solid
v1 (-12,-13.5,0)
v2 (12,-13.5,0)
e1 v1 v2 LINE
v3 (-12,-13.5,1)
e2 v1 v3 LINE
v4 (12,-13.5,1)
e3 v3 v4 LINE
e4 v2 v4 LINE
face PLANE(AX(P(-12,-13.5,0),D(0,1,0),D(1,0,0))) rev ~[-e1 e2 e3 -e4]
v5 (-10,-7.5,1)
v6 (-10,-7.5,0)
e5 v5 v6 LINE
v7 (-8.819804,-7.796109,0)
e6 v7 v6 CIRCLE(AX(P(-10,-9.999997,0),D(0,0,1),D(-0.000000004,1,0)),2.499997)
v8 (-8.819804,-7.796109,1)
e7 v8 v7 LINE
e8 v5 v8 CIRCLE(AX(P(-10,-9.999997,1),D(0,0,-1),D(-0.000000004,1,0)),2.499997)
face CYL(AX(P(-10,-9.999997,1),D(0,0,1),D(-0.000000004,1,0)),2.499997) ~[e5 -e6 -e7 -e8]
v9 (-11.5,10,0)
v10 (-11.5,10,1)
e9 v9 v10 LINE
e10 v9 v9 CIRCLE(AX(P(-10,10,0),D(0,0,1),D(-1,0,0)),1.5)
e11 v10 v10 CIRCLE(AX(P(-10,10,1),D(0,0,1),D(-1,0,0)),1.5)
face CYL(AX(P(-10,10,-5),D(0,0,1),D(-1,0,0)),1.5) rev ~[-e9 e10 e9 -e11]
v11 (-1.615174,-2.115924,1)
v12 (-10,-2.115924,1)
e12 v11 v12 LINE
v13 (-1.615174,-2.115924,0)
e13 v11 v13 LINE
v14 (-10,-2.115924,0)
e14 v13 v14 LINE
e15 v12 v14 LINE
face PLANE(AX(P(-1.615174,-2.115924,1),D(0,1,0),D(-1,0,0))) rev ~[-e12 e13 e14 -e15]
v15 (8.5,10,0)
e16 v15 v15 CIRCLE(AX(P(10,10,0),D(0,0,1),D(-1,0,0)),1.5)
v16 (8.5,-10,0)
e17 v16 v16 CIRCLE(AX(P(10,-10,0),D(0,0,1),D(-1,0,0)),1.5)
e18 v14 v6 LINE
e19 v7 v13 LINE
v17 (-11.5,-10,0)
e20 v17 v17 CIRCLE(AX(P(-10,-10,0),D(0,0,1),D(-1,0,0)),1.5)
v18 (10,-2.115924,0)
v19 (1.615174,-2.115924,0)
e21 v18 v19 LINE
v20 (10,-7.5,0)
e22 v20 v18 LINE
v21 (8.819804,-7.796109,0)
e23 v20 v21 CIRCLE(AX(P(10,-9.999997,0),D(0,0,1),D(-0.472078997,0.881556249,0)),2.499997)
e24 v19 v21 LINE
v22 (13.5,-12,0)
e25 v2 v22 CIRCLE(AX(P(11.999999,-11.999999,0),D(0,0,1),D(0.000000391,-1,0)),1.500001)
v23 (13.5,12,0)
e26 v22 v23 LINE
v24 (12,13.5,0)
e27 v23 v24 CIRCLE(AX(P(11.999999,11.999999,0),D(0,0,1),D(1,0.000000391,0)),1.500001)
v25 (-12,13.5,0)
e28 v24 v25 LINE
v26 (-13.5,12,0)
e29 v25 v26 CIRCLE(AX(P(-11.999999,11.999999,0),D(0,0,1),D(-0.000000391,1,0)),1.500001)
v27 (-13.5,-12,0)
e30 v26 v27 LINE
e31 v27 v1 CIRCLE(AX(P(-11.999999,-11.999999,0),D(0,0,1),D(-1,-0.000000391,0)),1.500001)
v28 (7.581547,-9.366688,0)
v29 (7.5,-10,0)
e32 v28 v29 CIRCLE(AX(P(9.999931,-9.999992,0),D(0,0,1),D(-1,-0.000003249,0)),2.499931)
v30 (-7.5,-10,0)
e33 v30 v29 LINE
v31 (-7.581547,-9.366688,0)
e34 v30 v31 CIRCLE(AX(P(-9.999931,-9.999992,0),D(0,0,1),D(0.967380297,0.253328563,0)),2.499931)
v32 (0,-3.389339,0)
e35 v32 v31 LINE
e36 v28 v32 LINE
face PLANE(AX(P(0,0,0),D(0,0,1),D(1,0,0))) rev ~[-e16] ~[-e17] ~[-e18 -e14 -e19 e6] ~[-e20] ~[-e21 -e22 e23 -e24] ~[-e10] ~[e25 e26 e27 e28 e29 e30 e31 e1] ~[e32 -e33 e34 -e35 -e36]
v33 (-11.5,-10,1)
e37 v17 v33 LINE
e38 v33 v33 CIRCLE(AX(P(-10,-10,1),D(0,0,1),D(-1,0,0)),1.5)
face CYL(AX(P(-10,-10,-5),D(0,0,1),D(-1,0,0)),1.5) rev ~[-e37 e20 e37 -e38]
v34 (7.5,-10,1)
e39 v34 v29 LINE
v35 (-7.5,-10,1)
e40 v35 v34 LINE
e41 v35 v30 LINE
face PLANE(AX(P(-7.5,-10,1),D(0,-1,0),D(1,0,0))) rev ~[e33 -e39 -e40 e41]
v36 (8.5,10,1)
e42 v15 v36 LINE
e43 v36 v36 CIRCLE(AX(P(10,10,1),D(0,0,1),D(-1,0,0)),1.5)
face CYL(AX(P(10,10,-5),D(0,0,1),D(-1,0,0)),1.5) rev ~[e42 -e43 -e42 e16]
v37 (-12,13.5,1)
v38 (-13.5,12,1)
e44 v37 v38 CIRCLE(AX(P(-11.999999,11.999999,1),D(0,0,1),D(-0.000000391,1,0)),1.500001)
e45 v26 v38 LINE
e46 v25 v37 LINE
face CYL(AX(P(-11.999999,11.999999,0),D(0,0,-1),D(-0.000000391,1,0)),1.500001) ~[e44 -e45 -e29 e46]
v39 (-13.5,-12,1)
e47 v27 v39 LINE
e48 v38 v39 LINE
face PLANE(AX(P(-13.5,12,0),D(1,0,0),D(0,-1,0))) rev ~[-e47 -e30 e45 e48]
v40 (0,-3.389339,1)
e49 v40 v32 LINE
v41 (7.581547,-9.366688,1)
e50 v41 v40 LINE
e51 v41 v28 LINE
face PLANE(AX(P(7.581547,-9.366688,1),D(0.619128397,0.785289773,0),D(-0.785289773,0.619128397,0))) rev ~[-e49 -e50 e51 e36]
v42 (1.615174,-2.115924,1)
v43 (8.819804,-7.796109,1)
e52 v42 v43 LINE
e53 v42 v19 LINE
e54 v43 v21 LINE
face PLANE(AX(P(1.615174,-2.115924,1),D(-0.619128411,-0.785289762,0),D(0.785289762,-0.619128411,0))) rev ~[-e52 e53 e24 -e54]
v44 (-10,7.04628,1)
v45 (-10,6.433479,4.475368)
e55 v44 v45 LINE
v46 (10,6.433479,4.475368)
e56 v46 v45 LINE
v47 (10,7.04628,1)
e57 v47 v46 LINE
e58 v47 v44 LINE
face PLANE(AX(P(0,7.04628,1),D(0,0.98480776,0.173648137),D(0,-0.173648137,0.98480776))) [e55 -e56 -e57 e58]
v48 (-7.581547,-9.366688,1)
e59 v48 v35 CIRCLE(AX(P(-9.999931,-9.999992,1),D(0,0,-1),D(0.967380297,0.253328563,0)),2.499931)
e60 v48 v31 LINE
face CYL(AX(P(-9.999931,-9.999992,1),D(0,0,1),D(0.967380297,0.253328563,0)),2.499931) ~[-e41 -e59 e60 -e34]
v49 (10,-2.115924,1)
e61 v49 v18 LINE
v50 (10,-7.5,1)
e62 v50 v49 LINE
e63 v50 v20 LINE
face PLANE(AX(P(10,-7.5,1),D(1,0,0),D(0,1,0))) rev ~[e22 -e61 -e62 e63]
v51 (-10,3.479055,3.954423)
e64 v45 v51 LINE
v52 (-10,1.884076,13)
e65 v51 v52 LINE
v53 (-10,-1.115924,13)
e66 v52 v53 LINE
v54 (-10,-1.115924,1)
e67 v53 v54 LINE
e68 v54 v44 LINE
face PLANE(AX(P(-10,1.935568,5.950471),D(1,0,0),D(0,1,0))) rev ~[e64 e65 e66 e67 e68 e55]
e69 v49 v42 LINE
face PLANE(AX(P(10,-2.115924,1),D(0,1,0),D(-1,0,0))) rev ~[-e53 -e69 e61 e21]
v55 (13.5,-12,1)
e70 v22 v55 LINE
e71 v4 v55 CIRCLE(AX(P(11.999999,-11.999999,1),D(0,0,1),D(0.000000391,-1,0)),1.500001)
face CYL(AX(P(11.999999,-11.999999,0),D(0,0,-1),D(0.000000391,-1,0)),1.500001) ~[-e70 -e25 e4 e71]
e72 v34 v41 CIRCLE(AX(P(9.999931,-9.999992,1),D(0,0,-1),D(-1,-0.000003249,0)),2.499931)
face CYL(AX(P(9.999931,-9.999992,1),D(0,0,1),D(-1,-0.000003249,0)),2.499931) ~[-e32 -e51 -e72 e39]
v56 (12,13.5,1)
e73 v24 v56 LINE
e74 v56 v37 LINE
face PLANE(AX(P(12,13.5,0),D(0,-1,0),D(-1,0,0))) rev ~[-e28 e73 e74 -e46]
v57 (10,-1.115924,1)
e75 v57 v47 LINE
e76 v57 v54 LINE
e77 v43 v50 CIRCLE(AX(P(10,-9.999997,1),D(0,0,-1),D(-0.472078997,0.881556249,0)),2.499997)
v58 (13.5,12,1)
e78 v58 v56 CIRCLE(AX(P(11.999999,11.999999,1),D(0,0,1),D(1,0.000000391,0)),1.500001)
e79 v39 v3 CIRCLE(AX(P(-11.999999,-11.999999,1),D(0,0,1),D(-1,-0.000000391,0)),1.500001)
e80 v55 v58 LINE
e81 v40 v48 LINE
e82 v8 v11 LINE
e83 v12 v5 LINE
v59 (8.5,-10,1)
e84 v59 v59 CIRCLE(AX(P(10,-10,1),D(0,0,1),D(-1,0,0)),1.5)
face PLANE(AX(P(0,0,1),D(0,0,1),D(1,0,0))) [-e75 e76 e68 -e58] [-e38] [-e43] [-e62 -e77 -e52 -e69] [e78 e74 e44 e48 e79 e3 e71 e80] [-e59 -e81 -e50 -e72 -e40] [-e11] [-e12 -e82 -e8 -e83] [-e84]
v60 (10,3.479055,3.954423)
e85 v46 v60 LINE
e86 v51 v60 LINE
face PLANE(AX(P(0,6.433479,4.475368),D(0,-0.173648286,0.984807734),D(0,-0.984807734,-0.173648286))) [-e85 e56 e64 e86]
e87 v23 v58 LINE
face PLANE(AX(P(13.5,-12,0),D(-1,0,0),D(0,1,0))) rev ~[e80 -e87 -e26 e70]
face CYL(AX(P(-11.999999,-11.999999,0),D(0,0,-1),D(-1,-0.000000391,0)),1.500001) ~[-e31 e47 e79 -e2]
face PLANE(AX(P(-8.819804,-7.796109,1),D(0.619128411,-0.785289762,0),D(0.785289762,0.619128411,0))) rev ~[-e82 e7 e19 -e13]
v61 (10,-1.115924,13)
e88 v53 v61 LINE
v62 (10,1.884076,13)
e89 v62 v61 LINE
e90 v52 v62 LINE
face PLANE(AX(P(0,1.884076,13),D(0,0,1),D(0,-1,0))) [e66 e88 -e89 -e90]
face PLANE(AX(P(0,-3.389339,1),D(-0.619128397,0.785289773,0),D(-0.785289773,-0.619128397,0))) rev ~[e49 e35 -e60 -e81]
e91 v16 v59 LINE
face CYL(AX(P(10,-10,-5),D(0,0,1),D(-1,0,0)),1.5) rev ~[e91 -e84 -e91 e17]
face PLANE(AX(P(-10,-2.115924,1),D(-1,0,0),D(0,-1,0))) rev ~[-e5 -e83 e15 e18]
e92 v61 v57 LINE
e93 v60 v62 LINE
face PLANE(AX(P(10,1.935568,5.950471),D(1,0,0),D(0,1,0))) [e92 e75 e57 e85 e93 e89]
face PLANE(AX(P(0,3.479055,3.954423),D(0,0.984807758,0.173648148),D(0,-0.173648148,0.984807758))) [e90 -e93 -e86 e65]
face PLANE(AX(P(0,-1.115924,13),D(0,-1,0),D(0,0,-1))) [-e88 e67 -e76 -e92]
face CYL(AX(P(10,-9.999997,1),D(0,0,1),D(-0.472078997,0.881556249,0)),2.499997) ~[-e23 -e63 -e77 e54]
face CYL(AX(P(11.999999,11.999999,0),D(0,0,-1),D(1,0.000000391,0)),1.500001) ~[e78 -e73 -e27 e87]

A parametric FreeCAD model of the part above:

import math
import FreeCAD as App
import Part
import Sketcher
from FreeCAD import Vector
Q = App.Units.Quantity


def add_polygon(sketch, points):
    """Adds a closed chain of lines whose ends are joined by coincident constraints."""
    first, n = sketch.GeometryCount, len(points)
    for a, b in zip(points, points[1:] + points[:1]):
        sketch.addGeometry(Part.LineSegment(App.Vector(*a, 0), App.Vector(*b, 0)), False)
    for i in range(n):
        sketch.addConstraint(Sketcher.Constraint("Coincident", first + i, 2, first + (i + 1) % n, 1))

doc = App.newDocument("Part")
body = doc.addObject("PartDesign::Body", "Body")

sketch1 = body.newObject("Sketcher::SketchObject", "Sketch")
sketch1.AttachmentSupport = (doc.getObject("XY_Plane"), [""])
sketch1.MapMode = "FlatFace"
sketch1.addGeometry(Part.LineSegment(Vector(12, 13.5, 0), Vector(-12, 13.5, 0)), False)
sketch1.addGeometry(Part.ArcOfCircle(Part.Circle(Vector(-12, 12, 0), Vector(0, 0, 1), 1.5), math.radians(90), math.radians(180)), False)
sketch1.addGeometry(Part.LineSegment(Vector(-13.5, 12, 0), Vector(-13.5, -12, 0)), False)
sketch1.addGeometry(Part.ArcOfCircle(Part.Circle(Vector(-12, -12, 0), Vector(0, 0, 1), 1.5), math.radians(-180), math.radians(-90)), False)
sketch1.addGeometry(Part.LineSegment(Vector(-12, -13.5, 0), Vector(12, -13.5, 0)), False)
sketch1.addGeometry(Part.ArcOfCircle(Part.Circle(Vector(12, -12, 0), Vector(0, 0, 1), 1.5), math.radians(-90), math.radians(0)), False)
sketch1.addGeometry(Part.LineSegment(Vector(13.5, -12, 0), Vector(13.5, 12, 0)), False)
sketch1.addGeometry(Part.ArcOfCircle(Part.Circle(Vector(12, 12, 0), Vector(0, 0, 1), 1.5), math.radians(0), math.radians(90)), False)
sketch1.addConstraint(Sketcher.Constraint("Tangent", 0, 2, 1, 1))
sketch1.addConstraint(Sketcher.Constraint("Tangent", 1, 2, 2, 1))
sketch1.addConstraint(Sketcher.Constraint("Tangent", 2, 2, 3, 1))
sketch1.addConstraint(Sketcher.Constraint("Tangent", 3, 2, 4, 1))
sketch1.addConstraint(Sketcher.Constraint("Tangent", 4, 2, 5, 1))
sketch1.addConstraint(Sketcher.Constraint("Tangent", 5, 2, 6, 1))
sketch1.addConstraint(Sketcher.Constraint("Tangent", 6, 2, 7, 1))
sketch1.addConstraint(Sketcher.Constraint("Tangent", 7, 2, 0, 1))
sketch1.addConstraint(Sketcher.Constraint("Horizontal", 0))
sketch1.addConstraint(Sketcher.Constraint("Vertical", 2))
sketch1.addConstraint(Sketcher.Constraint("Horizontal", 4))
sketch1.addConstraint(Sketcher.Constraint("Vertical", 6))
sketch1.addConstraint(Sketcher.Constraint("Equal", 1, 3))
sketch1.addConstraint(Sketcher.Constraint("Equal", 3, 5))
sketch1.addConstraint(Sketcher.Constraint("Equal", 5, 7))
sketch1.addConstraint(Sketcher.Constraint("Symmetric", 1, 3, 5, 3, -1, 1))
sketch1.addConstraint(Sketcher.Constraint("Equal", 4, 2))
sketch1.addConstraint(Sketcher.Constraint("Radius", 1, 1.500001))
sketch1.addConstraint(Sketcher.Constraint("DistanceX", 0, 2, 0, 1, 24.0))
pad1 = body.newObject("PartDesign::Pad", "Pad")
pad1.Profile = sketch1
pad1.Length = 1

sketch2 = body.newObject("Sketcher::SketchObject", "Sketch001")
sketch2.AttachmentSupport = (doc.getObject("YZ_Plane"), [""])
sketch2.MapMode = "FlatFace"
add_polygon(sketch2, [(6.4, 4.5), (3.5, 4), (1.9, 13), (-1.1, 13), (-1.1, 1), (7, 1)])
sketch2.addConstraint(Sketcher.Constraint("Horizontal", 2))
sketch2.addConstraint(Sketcher.Constraint("Vertical", 3))
sketch2.addConstraint(Sketcher.Constraint("Horizontal", 4))
sketch2.addConstraint(Sketcher.Constraint("Perpendicular", 0, 1))
sketch2.addConstraint(Sketcher.Constraint("Parallel", 1, 5))
sketch2.addConstraint(Sketcher.Constraint("DistanceX", 2, 2, 2, 1, 3.0))
sketch2.addConstraint(Sketcher.Constraint("DistanceY", 3, 2, 3, 1, 12.0))
sketch2.addConstraint(Sketcher.Constraint("Angle", 0, Q("-169.999994 deg")))
sketch2.addConstraint(Sketcher.Constraint("Distance", 0, 3.000001))
sketch2.addConstraint(Sketcher.Constraint("DistanceY", -1, 1, 1, 2, 13.0))
sketch2.addConstraint(Sketcher.Constraint("DistanceX", 5, 2, 4, 2, 0.612801))
sketch2.addConstraint(Sketcher.Constraint("DistanceX", -1, 1, 4, 2, 7.04628))
pad2 = body.newObject("PartDesign::Pad", "Pad001")
pad2.Profile = sketch2
pad2.Length = 20
pad2.Midplane = True

sketch3 = body.newObject("Sketcher::SketchObject", "Sketch002")
sketch3.AttachmentSupport = (doc.getObject("XY_Plane"), [""])
sketch3.MapMode = "FlatFace"
sketch3.addGeometry(Part.Circle(Vector(10, 10, 0), Vector(0, 0, 1), 1.5), False)
sketch3.addGeometry(Part.Circle(Vector(-10, 10, 0), Vector(0, 0, 1), 1.5), False)
sketch3.addGeometry(Part.Circle(Vector(-10, -10, 0), Vector(0, 0, 1), 1.5), False)
sketch3.addGeometry(Part.Circle(Vector(10, -10, 0), Vector(0, 0, 1), 1.5), False)
sketch3.addConstraint(Sketcher.Constraint("Equal", 0, 1))
sketch3.addConstraint(Sketcher.Constraint("Equal", 1, 2))
sketch3.addConstraint(Sketcher.Constraint("Equal", 2, 3))
sketch3.addConstraint(Sketcher.Constraint("Symmetric", 0, 3, 2, 3, -1, 1))
sketch3.addConstraint(Sketcher.Constraint("Symmetric", 1, 3, 3, 3, -1, 1))
sketch3.addConstraint(Sketcher.Constraint("Symmetric", 0, 3, 1, 3, -2))
sketch3.addConstraint(Sketcher.Constraint("Diameter", 0, 3.0))
sketch3.addConstraint(Sketcher.Constraint("DistanceX", -1, 1, 0, 3, 10.0))
sketch3.addConstraint(Sketcher.Constraint("DistanceY", -1, 1, 0, 3, 10.0))
doc.recompute()
hole = body.newObject("PartDesign::Hole", "Hole")
hole.Profile = sketch3
hole.ThreadType = "None"
hole.Diameter = 3
hole.DepthType = "Dimension"
hole.Depth = 5
hole.DrillPoint = "Flat"
hole.Reversed = True

sketch4 = body.newObject("Sketcher::SketchObject", "Sketch003")
sketch4.AttachmentSupport = (doc.getObject("XY_Plane"), [""])
sketch4.MapMode = "FlatFace"
sketch4.AttachmentOffset = App.Placement(Vector(0, 0, 1), App.Rotation())
sketch4.addGeometry(Part.LineSegment(Vector(-1.6, -2.1, 0), Vector(-10, -2.1, 0)), False)
sketch4.addGeometry(Part.LineSegment(Vector(-10, -2.1, 0), Vector(-10, -7.5, 0)), False)
sketch4.addGeometry(Part.ArcOfCircle(Part.Circle(Vector(-10, -10, 0), Vector(0, 0, 1), 2.5), math.radians(62), math.radians(90)), False)
sketch4.addGeometry(Part.LineSegment(Vector(-8.8, -7.8, 0), Vector(-1.6, -2.1, 0)), False)
sketch4.addGeometry(Part.ArcOfCircle(Part.Circle(Vector(-10, -10, 0), Vector(0, 0, 1), 2.5), math.radians(0), math.radians(14.67)), False)
sketch4.addGeometry(Part.LineSegment(Vector(-7.5, -10, 0), Vector(7.5, -10, 0)), False)
sketch4.addGeometry(Part.ArcOfCircle(Part.Circle(Vector(10, -10, 0), Vector(0, 0, 1), 2.5), math.radians(165.33), math.radians(180)), False)
sketch4.addGeometry(Part.LineSegment(Vector(7.6, -9.4, 0), Vector(0, -3.4, 0)), False)
sketch4.addGeometry(Part.LineSegment(Vector(0, -3.4, 0), Vector(-7.6, -9.4, 0)), False)
sketch4.addGeometry(Part.ArcOfCircle(Part.Circle(Vector(10, -10, 0), Vector(0, 0, 1), 2.5), math.radians(90), math.radians(118)), False)
sketch4.addGeometry(Part.LineSegment(Vector(10, -7.5, 0), Vector(10, -2.1, 0)), False)
sketch4.addGeometry(Part.LineSegment(Vector(10, -2.1, 0), Vector(1.6, -2.1, 0)), False)
sketch4.addGeometry(Part.LineSegment(Vector(1.6, -2.1, 0), Vector(8.8, -7.8, 0)), False)
sketch4.addConstraint(Sketcher.Constraint("Coincident", 0, 2, 1, 1))
sketch4.addConstraint(Sketcher.Constraint("Coincident", 1, 2, 2, 2))
sketch4.addConstraint(Sketcher.Constraint("Coincident", 2, 1, 3, 1))
sketch4.addConstraint(Sketcher.Constraint("Coincident", 3, 2, 0, 1))
sketch4.addConstraint(Sketcher.Constraint("Coincident", 4, 1, 5, 1))
sketch4.addConstraint(Sketcher.Constraint("Coincident", 5, 2, 6, 2))
sketch4.addConstraint(Sketcher.Constraint("Coincident", 6, 1, 7, 1))
sketch4.addConstraint(Sketcher.Constraint("Coincident", 7, 2, 8, 1))
sketch4.addConstraint(Sketcher.Constraint("Coincident", 8, 2, 4, 2))
sketch4.addConstraint(Sketcher.Constraint("Coincident", 9, 1, 10, 1))
sketch4.addConstraint(Sketcher.Constraint("Coincident", 10, 2, 11, 1))
sketch4.addConstraint(Sketcher.Constraint("Coincident", 11, 2, 12, 1))
sketch4.addConstraint(Sketcher.Constraint("Coincident", 12, 2, 9, 2))
sketch4.addConstraint(Sketcher.Constraint("Horizontal", 0))
sketch4.addConstraint(Sketcher.Constraint("Vertical", 1))
sketch4.addConstraint(Sketcher.Constraint("Horizontal", 5))
sketch4.addConstraint(Sketcher.Constraint("Vertical", 10))
sketch4.addConstraint(Sketcher.Constraint("Horizontal", 11))
sketch4.addConstraint(Sketcher.Constraint("Equal", 4, 6))
sketch4.addConstraint(Sketcher.Constraint("Equal", 2, 9))
sketch4.addConstraint(Sketcher.Constraint("Symmetric", 4, 3, 6, 3, -2))
sketch4.addConstraint(Sketcher.Constraint("Symmetric", 2, 3, 9, 3, -2))
sketch4.addConstraint(Sketcher.Constraint("Symmetric", 0, 2, 10, 2, -2))
sketch4.addConstraint(Sketcher.Constraint("PointOnObject", 7, 2, -2))
sketch4.addConstraint(Sketcher.Constraint("Parallel", 3, 8))
sketch4.addConstraint(Sketcher.Constraint("Parallel", 7, 12))
sketch4.addConstraint(Sketcher.Constraint("Horizontal", 6, 1, 8, 2))
sketch4.addConstraint(Sketcher.Constraint("Horizontal", 2, 1, 12, 2))
sketch4.addConstraint(Sketcher.Constraint("Vertical", 2, 3, 0, 2))
sketch4.addConstraint(Sketcher.Constraint("DistanceX", 5, 1, 5, 2, 15.0))
sketch4.addConstraint(Sketcher.Constraint("DistanceX", 2, 3, -1, 1, 10.0))
sketch4.addConstraint(Sketcher.Constraint("DistanceY", 4, 1, -1, 1, 10.0))
sketch4.addConstraint(Sketcher.Constraint("DistanceY", 1, 2, -1, 1, 7.5))
sketch4.addConstraint(Sketcher.Constraint("Radius", 4, 2.499931))
sketch4.addConstraint(Sketcher.Constraint("Radius", 2, 2.499997))
sketch4.addConstraint(Sketcher.Constraint("DistanceX", 0, 2, 0, 1, 8.384826))
sketch4.addConstraint(Sketcher.Constraint("DistanceY", 1, 2, 1, 1, 5.384076))
sketch4.addConstraint(Sketcher.Constraint("DistanceY", 4, 3, -1, 1, 9.999992))
sketch4.addConstraint(Sketcher.Constraint("DistanceY", 2, 1, -1, 1, 7.796109))
sketch4.addConstraint(Sketcher.Constraint("DistanceY", 6, 1, -1, 1, 9.366688))
pocket1 = body.newObject("PartDesign::Pocket", "Pocket")
pocket1.Profile = sketch4
pocket1.Length = 25

doc.recompute()
